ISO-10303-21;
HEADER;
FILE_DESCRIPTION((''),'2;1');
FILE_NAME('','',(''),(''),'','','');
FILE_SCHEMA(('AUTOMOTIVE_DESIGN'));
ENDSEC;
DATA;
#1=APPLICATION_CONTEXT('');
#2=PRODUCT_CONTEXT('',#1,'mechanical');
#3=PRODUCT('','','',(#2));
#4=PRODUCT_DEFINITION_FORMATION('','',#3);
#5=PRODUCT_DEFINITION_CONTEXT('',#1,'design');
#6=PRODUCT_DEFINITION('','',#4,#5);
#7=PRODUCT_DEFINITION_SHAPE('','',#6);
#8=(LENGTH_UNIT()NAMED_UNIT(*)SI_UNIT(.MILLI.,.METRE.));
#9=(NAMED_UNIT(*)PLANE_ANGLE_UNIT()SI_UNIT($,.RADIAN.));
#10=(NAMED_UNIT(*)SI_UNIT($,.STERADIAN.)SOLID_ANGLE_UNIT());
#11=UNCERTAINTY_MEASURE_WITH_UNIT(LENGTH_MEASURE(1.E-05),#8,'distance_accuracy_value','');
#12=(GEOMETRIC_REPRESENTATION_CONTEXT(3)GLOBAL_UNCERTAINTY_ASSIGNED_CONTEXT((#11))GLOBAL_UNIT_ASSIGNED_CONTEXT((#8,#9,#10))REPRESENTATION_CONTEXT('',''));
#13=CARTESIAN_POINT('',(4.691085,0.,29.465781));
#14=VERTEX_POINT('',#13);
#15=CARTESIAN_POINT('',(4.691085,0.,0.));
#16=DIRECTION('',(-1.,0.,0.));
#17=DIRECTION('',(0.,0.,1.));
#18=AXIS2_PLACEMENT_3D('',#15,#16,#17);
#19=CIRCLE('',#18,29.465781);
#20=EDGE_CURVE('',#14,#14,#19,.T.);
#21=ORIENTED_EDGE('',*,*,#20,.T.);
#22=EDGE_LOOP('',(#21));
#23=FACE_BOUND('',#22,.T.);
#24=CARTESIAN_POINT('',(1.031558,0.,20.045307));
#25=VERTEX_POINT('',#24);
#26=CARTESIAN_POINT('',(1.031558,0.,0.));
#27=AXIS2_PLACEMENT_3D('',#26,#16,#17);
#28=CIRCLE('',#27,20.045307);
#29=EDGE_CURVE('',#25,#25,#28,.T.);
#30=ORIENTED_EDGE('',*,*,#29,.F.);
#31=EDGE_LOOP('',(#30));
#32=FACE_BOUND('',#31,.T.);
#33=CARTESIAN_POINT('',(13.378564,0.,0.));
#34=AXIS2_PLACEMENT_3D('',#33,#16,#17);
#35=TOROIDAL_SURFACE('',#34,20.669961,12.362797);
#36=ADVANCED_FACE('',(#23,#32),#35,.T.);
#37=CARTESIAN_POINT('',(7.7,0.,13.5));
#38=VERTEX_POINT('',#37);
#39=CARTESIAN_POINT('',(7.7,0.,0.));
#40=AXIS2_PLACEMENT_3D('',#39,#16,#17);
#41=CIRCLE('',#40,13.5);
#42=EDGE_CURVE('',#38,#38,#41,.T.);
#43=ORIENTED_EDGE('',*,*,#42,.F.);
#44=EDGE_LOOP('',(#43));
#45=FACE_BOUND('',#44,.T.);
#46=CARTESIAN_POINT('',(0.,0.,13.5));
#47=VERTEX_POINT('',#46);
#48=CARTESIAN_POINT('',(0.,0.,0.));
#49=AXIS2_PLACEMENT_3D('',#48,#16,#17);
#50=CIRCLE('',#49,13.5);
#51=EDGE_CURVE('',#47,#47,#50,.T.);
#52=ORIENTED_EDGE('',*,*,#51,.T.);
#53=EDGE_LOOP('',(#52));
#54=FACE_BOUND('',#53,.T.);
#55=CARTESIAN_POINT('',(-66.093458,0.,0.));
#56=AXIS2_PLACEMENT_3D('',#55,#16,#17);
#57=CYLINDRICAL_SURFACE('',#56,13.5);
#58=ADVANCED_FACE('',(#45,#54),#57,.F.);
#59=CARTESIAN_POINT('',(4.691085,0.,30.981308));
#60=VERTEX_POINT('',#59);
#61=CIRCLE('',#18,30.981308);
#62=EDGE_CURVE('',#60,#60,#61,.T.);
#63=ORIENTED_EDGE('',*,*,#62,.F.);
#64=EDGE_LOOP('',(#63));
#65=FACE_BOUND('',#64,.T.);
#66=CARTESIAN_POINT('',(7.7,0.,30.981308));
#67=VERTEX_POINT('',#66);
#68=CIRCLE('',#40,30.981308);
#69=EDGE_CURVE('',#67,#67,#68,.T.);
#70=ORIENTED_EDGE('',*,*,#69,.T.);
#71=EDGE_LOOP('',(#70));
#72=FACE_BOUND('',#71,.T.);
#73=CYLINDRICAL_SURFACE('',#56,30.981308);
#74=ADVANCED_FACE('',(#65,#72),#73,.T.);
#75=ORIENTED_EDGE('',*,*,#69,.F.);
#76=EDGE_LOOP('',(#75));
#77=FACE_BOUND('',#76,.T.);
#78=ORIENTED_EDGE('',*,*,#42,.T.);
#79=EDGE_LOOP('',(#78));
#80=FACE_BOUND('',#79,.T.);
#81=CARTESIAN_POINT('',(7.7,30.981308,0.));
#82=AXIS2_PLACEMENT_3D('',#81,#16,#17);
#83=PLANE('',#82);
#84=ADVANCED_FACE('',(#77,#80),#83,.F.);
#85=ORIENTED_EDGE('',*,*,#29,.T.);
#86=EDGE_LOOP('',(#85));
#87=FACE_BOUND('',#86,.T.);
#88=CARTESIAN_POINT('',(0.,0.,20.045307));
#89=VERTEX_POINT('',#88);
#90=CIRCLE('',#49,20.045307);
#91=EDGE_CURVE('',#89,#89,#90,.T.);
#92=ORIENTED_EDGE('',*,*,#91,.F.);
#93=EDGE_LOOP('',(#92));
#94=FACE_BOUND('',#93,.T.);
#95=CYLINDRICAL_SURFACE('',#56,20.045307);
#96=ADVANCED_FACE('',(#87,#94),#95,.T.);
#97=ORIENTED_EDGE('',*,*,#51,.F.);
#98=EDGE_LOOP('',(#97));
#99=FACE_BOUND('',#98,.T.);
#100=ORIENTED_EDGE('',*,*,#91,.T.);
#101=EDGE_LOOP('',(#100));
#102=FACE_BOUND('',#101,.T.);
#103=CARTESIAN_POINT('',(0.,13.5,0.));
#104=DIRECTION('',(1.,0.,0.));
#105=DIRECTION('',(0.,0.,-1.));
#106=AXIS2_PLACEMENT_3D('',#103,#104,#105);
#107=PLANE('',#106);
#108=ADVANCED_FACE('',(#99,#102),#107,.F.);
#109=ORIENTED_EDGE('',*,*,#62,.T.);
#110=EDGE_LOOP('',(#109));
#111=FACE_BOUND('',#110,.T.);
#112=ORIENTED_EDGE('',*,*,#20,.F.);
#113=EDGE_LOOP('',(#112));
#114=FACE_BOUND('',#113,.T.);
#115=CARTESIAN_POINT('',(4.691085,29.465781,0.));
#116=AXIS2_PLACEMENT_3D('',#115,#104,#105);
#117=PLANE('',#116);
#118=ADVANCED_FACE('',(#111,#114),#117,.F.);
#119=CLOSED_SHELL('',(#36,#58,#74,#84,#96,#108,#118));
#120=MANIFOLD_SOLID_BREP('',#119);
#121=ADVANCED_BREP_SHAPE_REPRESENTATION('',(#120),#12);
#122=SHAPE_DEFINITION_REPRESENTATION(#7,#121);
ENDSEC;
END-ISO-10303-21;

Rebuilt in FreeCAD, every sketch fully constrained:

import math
import FreeCAD as App
import Part
import Sketcher

doc = App.newDocument("Part")
body = doc.addObject("PartDesign::Body", "Body")

sketch1 = body.newObject("Sketcher::SketchObject", "Sketch")
sketch1.AttachmentSupport = (doc.getObject("XY_Plane"), [""])
sketch1.MapMode = "FlatFace"
sketch1.addGeometry([
    Part.LineSegment(App.Vector(0, 20, 0), App.Vector(0, 13.5, 0)),
    Part.LineSegment(App.Vector(0, 13.5, 0), App.Vector(7.7, 13.5, 0)),
    Part.LineSegment(App.Vector(7.7, 13.5, 0), App.Vector(7.7, 31, 0)),
    Part.LineSegment(App.Vector(7.7, 31, 0), App.Vector(4.7, 31, 0)),
    Part.LineSegment(App.Vector(4.7, 31, 0), App.Vector(4.7, 29.5, 0)),
    Part.ArcOfCircle(Part.Circle(App.Vector(13.4, 20.7, 0), App.Vector(0, 0, 1), 12.4), math.radians(135), math.radians(183)),
    Part.LineSegment(App.Vector(1, 20, 0), App.Vector(0, 20, 0)),
], False)
sketch1.addConstraint([
    Sketcher.Constraint("Coincident", 0, 2, 1, 1),
    Sketcher.Constraint("Coincident", 1, 2, 2, 1),
    Sketcher.Constraint("Coincident", 2, 2, 3, 1),
    Sketcher.Constraint("Coincident", 3, 2, 4, 1),
    Sketcher.Constraint("Coincident", 4, 2, 5, 1),
    Sketcher.Constraint("Coincident", 5, 2, 6, 1),
    Sketcher.Constraint("Coincident", 6, 2, 0, 1),
    Sketcher.Constraint("Vertical", 0),
    Sketcher.Constraint("Horizontal", 1),
    Sketcher.Constraint("Vertical", 2),
    Sketcher.Constraint("Horizontal", 3),
    Sketcher.Constraint("Vertical", 4),
    Sketcher.Constraint("Horizontal", 6),
    Sketcher.Constraint("PointOnObject", 0, 2, -2),
    Sketcher.Constraint("DistanceX", 1, 1, 1, 2, 7.7),
    Sketcher.Constraint("DistanceY", -1, 1, 0, 2, 13.5),
    Sketcher.Constraint("Radius", 5, 12.362797),
    Sketcher.Constraint("DistanceY", 5, 2, 3, 2, 10.936001),
    Sketcher.Constraint("DistanceX", 6, 2, 6, 1, 1.031558),
    Sketcher.Constraint("DistanceY", 2, 1, 2, 2, 17.481308),
    Sketcher.Constraint("DistanceX", 3, 2, 3, 1, 3.008915),
    Sketcher.Constraint("DistanceY", 4, 2, 4, 1, 1.515528),
])
revolution = body.newObject("PartDesign::Revolution", "Revolution")
revolution.Profile = sketch1
revolution.ReferenceAxis = (sketch1, ["H_Axis"])
revolution.Angle = 360

doc.recompute()
